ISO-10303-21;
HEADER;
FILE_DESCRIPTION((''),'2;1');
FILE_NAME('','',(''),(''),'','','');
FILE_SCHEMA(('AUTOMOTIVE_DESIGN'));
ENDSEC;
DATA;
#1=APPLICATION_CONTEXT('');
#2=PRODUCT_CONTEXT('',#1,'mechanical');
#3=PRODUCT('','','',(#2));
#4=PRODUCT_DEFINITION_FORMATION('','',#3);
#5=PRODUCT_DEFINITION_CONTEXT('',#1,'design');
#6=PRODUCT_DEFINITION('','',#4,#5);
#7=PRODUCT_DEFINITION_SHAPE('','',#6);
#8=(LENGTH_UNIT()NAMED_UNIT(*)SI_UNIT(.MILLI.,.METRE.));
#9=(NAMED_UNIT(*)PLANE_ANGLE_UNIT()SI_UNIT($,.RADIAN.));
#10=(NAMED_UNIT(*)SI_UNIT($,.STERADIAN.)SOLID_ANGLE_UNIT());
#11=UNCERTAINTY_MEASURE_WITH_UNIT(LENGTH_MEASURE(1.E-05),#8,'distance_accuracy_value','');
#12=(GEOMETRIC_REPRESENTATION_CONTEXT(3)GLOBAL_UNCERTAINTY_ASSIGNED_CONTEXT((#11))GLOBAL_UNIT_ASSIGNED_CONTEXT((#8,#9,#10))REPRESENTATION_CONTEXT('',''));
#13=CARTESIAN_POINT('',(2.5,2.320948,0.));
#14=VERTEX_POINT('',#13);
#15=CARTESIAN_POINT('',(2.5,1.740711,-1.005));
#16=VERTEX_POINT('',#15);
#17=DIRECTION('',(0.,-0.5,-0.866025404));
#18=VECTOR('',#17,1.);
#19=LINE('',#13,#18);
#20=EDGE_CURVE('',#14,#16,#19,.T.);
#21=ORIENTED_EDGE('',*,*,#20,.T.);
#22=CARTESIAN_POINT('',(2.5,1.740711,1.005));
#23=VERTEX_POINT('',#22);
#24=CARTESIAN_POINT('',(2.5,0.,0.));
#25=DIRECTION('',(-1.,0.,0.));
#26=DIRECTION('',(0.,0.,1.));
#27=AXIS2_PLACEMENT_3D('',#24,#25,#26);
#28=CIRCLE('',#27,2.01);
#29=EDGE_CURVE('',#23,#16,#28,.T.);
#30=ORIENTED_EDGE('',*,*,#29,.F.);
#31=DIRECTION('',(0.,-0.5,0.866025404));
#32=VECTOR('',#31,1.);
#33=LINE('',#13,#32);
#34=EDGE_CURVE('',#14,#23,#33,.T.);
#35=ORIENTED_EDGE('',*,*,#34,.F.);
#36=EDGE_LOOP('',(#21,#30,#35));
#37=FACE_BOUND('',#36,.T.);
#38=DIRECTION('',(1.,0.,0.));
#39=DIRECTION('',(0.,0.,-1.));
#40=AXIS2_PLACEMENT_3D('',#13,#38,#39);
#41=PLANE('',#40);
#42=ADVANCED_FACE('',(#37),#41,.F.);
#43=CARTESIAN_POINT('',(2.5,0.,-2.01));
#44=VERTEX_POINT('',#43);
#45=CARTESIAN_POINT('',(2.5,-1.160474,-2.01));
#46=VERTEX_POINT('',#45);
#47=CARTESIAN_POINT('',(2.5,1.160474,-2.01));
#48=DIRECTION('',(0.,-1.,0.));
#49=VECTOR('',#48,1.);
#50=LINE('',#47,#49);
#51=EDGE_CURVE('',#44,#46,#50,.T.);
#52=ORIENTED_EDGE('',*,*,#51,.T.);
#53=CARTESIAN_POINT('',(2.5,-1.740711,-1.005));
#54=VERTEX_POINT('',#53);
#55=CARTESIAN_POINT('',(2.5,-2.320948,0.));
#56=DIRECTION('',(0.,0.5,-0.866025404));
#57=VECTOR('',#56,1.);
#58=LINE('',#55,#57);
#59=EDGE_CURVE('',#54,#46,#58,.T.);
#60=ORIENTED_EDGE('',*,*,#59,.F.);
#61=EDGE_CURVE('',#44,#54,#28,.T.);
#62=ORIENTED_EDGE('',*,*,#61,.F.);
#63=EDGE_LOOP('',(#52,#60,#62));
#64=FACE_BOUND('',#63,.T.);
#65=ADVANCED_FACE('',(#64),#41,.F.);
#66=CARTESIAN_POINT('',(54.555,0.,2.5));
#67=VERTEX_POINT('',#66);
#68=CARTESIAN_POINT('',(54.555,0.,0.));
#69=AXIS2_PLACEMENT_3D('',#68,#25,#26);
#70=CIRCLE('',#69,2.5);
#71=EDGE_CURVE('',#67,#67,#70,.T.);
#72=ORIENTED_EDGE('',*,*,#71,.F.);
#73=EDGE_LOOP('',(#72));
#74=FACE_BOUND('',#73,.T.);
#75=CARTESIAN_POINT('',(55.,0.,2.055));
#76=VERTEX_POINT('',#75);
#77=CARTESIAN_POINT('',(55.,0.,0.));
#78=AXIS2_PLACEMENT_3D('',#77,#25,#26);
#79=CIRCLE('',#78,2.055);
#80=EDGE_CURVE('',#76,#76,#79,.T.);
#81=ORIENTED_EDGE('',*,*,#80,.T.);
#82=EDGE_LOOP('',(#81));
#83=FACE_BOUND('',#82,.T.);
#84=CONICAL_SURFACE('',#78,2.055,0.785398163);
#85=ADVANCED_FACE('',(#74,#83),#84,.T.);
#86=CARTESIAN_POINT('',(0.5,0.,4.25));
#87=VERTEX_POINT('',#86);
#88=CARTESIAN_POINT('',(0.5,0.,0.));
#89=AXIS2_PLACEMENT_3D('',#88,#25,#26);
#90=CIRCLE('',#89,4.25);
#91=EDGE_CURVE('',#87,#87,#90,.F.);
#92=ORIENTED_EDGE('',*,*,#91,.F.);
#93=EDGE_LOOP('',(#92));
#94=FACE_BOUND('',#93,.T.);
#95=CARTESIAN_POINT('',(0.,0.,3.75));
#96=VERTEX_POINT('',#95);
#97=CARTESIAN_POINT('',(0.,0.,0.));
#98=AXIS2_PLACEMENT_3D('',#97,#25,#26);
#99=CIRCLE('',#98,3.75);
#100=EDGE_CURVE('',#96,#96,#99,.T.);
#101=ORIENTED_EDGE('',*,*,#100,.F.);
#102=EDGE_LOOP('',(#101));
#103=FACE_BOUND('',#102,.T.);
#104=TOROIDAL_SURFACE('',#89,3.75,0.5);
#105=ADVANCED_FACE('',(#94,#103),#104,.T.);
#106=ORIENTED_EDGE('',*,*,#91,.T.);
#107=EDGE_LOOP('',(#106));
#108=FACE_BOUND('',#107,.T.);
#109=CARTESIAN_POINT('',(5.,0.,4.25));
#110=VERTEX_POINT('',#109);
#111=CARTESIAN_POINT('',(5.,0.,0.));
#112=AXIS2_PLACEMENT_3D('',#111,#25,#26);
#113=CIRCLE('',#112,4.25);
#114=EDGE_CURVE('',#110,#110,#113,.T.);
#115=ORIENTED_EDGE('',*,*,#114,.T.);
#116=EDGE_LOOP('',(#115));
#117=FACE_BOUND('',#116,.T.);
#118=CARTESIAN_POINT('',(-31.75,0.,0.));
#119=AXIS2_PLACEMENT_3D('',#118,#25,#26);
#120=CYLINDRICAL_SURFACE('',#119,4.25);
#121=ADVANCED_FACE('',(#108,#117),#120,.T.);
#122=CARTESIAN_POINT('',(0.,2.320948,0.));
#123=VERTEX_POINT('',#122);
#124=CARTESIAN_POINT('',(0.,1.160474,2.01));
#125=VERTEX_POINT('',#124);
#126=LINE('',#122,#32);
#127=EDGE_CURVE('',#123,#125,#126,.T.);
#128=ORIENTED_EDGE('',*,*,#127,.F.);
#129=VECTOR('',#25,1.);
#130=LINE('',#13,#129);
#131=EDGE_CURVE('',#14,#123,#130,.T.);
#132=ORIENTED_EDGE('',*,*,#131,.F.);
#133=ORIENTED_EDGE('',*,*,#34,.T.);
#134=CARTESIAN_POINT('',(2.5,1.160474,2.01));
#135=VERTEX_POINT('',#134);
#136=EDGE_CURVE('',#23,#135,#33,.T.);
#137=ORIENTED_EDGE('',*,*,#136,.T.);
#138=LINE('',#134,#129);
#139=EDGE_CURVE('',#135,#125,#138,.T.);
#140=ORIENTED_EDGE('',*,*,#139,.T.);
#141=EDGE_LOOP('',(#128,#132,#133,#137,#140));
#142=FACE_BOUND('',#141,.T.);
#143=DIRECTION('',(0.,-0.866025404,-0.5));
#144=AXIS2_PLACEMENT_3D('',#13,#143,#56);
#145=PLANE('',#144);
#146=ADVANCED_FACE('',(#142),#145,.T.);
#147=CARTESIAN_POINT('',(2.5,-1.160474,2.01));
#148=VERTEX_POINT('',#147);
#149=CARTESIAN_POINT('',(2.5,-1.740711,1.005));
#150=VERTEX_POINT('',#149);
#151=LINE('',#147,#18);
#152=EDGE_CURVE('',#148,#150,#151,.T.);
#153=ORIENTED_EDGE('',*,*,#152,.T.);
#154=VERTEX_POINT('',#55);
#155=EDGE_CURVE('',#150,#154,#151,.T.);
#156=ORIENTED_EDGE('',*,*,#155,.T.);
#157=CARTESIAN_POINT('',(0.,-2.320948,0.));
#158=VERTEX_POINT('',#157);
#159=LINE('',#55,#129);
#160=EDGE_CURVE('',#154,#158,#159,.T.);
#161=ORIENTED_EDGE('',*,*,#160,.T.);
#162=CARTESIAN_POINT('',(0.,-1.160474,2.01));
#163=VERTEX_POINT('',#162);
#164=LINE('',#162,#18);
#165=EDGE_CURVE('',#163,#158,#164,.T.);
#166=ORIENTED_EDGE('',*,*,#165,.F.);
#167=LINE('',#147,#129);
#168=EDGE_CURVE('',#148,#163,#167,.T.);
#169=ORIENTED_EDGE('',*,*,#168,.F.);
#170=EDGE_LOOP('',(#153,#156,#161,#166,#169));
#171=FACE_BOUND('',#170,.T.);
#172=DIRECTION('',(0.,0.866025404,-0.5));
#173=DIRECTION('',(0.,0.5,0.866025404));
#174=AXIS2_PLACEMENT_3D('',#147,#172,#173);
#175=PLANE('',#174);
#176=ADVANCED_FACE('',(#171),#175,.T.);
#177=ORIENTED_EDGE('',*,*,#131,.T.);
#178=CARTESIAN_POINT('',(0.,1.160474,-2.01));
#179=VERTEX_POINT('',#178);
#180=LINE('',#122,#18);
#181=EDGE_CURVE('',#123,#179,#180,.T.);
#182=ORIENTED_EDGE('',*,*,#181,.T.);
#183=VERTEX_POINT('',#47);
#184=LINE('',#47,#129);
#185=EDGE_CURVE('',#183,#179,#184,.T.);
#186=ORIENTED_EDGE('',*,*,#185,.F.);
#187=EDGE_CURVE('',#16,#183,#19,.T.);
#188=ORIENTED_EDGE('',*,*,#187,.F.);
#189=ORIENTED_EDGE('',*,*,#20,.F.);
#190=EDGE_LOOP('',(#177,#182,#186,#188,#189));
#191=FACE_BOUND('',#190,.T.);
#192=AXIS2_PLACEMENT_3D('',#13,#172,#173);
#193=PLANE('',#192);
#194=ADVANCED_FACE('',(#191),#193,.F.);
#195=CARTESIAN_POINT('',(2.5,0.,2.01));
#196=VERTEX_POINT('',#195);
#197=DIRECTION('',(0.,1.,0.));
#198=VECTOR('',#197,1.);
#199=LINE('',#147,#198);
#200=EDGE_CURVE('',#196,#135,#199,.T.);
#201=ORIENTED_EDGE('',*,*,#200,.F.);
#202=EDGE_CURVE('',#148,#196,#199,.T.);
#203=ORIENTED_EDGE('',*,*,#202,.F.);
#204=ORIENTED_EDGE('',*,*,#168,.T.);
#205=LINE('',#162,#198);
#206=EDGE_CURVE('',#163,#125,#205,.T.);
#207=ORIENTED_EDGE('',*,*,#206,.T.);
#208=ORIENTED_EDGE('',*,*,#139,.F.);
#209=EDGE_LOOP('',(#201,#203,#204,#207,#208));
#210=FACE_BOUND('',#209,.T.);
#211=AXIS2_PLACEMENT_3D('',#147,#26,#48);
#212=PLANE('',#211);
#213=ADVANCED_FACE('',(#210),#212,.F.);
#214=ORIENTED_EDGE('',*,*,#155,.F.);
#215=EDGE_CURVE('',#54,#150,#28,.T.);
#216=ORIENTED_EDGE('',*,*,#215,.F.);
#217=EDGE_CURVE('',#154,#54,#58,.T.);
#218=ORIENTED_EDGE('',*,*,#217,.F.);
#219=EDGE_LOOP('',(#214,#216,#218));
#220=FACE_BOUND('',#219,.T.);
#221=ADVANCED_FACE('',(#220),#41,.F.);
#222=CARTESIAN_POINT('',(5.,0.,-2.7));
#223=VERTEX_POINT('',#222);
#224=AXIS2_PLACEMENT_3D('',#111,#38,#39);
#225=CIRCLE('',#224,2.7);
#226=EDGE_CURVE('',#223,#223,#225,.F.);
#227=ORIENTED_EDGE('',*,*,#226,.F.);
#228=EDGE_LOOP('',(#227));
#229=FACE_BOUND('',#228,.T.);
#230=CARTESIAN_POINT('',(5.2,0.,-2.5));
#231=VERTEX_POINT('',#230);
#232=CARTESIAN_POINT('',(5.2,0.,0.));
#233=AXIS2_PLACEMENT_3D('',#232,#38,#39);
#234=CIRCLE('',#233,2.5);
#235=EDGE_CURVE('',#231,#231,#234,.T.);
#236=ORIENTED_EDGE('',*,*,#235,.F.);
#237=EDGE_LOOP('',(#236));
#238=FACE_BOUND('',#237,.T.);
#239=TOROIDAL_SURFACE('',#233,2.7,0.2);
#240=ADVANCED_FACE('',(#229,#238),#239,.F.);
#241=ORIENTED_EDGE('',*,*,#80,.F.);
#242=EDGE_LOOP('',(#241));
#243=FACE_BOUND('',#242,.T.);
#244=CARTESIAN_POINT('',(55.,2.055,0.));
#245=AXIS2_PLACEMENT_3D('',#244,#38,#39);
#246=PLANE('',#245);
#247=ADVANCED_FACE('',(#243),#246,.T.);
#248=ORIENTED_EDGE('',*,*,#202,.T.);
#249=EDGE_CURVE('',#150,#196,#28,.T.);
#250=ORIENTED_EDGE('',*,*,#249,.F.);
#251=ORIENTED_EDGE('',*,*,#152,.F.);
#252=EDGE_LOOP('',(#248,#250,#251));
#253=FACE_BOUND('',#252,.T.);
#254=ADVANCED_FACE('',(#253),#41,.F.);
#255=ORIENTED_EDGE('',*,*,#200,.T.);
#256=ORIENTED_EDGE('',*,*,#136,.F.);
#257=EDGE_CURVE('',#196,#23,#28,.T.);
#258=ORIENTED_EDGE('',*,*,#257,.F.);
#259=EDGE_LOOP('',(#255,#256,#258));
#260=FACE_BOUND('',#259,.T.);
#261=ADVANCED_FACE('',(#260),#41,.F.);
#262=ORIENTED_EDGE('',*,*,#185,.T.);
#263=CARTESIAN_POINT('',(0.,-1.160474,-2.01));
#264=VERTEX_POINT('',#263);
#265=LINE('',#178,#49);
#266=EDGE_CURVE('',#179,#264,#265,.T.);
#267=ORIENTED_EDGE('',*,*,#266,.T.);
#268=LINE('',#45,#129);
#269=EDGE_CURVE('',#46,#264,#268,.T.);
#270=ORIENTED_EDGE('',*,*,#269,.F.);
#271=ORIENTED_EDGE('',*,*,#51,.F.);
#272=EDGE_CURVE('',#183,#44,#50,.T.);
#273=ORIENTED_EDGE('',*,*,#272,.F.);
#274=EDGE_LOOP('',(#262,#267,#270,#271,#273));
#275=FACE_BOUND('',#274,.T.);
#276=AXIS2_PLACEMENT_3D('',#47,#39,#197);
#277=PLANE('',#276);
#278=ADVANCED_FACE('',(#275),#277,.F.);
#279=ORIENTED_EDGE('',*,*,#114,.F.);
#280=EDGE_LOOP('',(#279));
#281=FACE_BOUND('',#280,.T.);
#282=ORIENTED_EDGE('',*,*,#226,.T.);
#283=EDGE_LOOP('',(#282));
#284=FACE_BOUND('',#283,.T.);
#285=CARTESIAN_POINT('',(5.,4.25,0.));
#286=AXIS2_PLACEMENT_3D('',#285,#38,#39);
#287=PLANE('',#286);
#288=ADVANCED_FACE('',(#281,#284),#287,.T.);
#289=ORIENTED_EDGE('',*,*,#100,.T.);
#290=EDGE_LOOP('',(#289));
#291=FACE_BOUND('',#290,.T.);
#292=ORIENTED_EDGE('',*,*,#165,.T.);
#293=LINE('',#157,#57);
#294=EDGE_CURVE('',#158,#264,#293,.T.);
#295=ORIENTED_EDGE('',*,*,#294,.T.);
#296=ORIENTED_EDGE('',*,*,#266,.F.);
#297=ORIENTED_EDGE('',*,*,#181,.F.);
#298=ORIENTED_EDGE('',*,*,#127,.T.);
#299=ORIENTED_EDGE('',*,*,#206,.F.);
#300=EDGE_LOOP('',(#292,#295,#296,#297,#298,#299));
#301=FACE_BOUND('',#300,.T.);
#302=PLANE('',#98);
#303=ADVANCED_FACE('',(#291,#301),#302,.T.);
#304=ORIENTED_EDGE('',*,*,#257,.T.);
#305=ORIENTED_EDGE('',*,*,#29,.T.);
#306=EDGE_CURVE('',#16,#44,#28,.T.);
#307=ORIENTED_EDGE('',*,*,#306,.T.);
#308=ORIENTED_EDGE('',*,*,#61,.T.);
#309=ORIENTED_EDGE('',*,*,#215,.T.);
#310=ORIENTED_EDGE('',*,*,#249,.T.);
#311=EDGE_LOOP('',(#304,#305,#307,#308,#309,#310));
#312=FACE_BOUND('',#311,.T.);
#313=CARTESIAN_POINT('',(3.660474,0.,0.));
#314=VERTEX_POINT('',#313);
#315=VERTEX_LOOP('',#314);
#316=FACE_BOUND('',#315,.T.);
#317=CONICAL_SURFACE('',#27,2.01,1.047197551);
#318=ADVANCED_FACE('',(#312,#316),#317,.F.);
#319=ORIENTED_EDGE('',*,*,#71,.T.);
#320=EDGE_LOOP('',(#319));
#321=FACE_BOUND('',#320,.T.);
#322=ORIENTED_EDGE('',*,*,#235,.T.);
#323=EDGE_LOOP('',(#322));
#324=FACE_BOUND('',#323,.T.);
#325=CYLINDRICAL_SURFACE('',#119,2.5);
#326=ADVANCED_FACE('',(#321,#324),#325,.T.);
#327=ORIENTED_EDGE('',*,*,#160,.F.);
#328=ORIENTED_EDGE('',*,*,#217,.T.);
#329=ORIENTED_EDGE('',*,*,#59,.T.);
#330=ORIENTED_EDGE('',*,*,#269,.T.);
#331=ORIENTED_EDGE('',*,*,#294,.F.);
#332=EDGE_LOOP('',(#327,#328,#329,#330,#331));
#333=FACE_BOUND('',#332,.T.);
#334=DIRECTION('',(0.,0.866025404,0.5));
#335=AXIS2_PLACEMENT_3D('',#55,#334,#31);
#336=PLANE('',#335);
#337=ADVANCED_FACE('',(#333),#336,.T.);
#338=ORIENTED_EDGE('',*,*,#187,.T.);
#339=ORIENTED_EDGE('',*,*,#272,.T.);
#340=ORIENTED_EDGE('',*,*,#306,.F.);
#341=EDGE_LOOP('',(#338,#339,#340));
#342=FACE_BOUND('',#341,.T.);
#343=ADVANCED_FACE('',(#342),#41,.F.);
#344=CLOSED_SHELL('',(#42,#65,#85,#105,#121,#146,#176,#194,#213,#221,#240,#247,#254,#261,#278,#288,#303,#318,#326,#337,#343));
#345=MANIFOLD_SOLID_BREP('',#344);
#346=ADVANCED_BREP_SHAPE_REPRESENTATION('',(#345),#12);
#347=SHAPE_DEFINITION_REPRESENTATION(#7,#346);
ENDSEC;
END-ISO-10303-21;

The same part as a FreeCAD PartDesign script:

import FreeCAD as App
import Part
import Sketcher
from FreeCAD import Vector
Q = App.Units.Quantity


def edges_at(feature, points):
    """Names of the edges that pass closest to the given points."""
    edges = feature.Shape.Edges
    near = lambda p: min(range(len(edges)), key=lambda i: edges[i].distToShape(Part.Vertex(*p))[0])
    return sorted({f"Edge{near(p) + 1}" for p in points})


def add_polygon(sketch, points):
    """Adds a closed chain of lines whose ends are joined by coincident constraints."""
    first, n = sketch.GeometryCount, len(points)
    for a, b in zip(points, points[1:] + points[:1]):
        sketch.addGeometry(Part.LineSegment(App.Vector(*a, 0), App.Vector(*b, 0)), False)
    for i in range(n):
        sketch.addConstraint(Sketcher.Constraint("Coincident", first + i, 2, first + (i + 1) % n, 1))

doc = App.newDocument("Part")
body = doc.addObject("PartDesign::Body", "Body")

sketch1 = body.newObject("Sketcher::SketchObject", "Sketch")
sketch1.AttachmentSupport = (doc.getObject("XY_Plane"), [""])
sketch1.MapMode = "FlatFace"
add_polygon(sketch1, [(0, 4.2), (0, 0), (55, 0), (55, 2.1), (54.6, 2.5), (5, 2.5), (5, 4.2)])
sketch1.addConstraint([
    Sketcher.Constraint("Vertical", 0),
    Sketcher.Constraint("Horizontal", 1),
    Sketcher.Constraint("Vertical", 2),
    Sketcher.Constraint("Horizontal", 4),
    Sketcher.Constraint("Vertical", 5),
    Sketcher.Constraint("Horizontal", 6),
    Sketcher.Constraint("Coincident", 0, 2, -1, 1),
    Sketcher.Constraint("DistanceX", 1, 1, 1, 2, Q("55 mm")),
    Sketcher.Constraint("DistanceX", 6, 2, 6, 1, Q("5 mm")),
    Sketcher.Constraint("Angle", 3, Q("135 deg")),
    Sketcher.Constraint("DistanceY", 0, 2, 0, 1, Q("4.25 mm")),
    Sketcher.Constraint("DistanceY", 5, 1, 5, 2, Q("1.75 mm")),
    Sketcher.Constraint("DistanceX", 4, 2, 4, 1, Q("49.555 mm")),
])
revolution = body.newObject("PartDesign::Revolution", "Revolution")
revolution.Profile = sketch1
revolution.ReferenceAxis = (sketch1, ["H_Axis"])
revolution.Angle = 360
doc.recompute()

fillet = body.newObject("PartDesign::Fillet", "Fillet")
fillet.Base = (revolution, edges_at(revolution, [(5, -2.5, 0)]))
fillet.Radius = 0.2
doc.recompute()

fillet2 = body.newObject("PartDesign::Fillet", "Fillet001")
fillet2.Base = (fillet, edges_at(fillet, [(0, -4.25, 0)]))
fillet2.Radius = 0.5

sketch2 = body.newObject("Sketcher::SketchObject", "Sketch001")
sketch2.AttachmentSupport = (doc.getObject("XY_Plane"), [""])
sketch2.MapMode = "FlatFace"
add_polygon(sketch2, [(2.5, 2), (0, 2), (0, 0), (3.7, 0)])
sketch2.addConstraint([
    Sketcher.Constraint("Horizontal", 0),
    Sketcher.Constraint("Vertical", 1),
    Sketcher.Constraint("Horizontal", 2),
    Sketcher.Constraint("Coincident", 1, 2, -1, 1),
    Sketcher.Constraint("Angle", 3, Q("120 deg")),
    Sketcher.Constraint("DistanceX", 0, 2, 0, 1, Q("2.5 mm")),
    Sketcher.Constraint("DistanceY", 1, 2, 1, 1, Q("2.01 mm")),
])
groove = body.newObject("PartDesign::Groove", "Groove")
groove.Profile = sketch2
groove.ReferenceAxis = (sketch2, ["H_Axis"])
groove.Angle = 360

sketch3 = body.newObject("Sketcher::SketchObject", "Sketch002")
sketch3.AttachmentSupport = (doc.getObject("YZ_Plane"), [""])
sketch3.MapMode = "FlatFace"
add_polygon(sketch3, [(2.3, 0), (1.2, -2), (-1.2, -2), (-2.3, 0), (-1.2, 2), (1.2, 2)])
sketch3.addConstraint([
    Sketcher.Constraint("Horizontal", 1),
    Sketcher.Constraint("Horizontal", 4),
    Sketcher.Constraint("Symmetric", 0, 2, 3, 2, -1, 1),
    Sketcher.Constraint("Symmetric", 2, 2, 5, 2, -1, 1),
    Sketcher.Constraint("PointOnObject", 2, 2, -1),
    Sketcher.Constraint("Parallel", 2, 5),
    Sketcher.Constraint("Vertical", 1, 2, 3, 2),
    Sketcher.Constraint("Angle", 0, Q("-120 deg")),
    Sketcher.Constraint("DistanceY", 0, 2, -1, 1, Q("2.01 mm")),
    Sketcher.Constraint("DistanceX", 1, 2, 1, 1, Q("2.320948 mm")),
])
pocket1 = body.newObject("PartDesign::Pocket", "Pocket")
pocket1.Profile = sketch3
pocket1.Length = 2.5
pocket1.Reversed = True

doc.recompute()
